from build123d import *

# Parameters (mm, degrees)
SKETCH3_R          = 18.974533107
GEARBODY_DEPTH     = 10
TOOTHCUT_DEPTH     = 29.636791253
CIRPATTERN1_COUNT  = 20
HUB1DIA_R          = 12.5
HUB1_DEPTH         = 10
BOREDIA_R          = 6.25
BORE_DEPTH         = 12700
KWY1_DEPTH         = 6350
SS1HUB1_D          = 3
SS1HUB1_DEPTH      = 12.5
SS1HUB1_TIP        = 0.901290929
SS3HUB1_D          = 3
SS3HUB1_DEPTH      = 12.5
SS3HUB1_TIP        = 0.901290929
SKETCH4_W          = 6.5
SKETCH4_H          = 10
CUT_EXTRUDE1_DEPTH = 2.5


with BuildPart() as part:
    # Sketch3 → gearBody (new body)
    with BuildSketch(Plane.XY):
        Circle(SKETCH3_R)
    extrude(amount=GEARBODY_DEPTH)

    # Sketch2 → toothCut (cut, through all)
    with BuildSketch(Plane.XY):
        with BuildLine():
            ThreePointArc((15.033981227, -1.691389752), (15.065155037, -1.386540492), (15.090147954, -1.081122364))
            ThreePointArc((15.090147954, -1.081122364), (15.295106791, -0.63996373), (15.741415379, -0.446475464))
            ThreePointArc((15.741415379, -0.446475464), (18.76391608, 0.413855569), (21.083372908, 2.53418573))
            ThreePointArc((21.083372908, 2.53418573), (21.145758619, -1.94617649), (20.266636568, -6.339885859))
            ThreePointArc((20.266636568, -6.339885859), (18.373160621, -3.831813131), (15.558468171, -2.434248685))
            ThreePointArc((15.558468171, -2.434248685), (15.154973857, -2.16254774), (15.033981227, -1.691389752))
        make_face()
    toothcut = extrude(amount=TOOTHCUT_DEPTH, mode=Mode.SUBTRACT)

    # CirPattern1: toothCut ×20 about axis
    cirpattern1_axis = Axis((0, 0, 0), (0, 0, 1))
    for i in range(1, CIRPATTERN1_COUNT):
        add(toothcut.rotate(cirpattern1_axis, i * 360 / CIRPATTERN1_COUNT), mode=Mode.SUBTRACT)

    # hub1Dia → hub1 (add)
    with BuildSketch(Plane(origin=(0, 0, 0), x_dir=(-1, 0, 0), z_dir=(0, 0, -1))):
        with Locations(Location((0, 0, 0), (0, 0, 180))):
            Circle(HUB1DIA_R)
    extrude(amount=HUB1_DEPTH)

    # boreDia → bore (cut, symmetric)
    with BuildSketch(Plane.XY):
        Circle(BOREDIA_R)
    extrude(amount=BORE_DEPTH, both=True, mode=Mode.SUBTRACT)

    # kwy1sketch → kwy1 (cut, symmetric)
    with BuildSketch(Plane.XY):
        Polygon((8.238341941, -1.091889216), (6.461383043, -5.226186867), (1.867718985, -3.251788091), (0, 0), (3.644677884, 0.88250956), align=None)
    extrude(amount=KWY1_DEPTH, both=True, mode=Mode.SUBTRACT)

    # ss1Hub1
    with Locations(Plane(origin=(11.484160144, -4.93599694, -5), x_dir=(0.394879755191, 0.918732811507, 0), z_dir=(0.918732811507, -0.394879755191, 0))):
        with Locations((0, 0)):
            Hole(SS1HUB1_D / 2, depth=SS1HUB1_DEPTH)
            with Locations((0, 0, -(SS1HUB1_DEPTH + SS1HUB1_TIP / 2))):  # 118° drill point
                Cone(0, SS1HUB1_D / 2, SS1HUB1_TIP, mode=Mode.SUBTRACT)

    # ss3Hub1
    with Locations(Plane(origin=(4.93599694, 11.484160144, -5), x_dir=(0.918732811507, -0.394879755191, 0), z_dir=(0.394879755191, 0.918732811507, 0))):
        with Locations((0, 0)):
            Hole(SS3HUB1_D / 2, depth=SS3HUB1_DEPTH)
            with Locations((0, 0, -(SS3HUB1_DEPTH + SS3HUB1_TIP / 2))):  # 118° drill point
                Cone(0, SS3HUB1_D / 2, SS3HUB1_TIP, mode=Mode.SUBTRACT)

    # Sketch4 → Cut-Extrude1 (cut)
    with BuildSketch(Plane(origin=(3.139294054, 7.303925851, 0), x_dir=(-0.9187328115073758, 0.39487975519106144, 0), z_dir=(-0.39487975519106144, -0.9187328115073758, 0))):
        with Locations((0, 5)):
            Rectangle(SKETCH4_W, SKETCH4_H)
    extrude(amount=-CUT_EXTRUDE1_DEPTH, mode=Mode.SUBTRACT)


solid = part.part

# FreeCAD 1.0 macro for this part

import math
import FreeCAD as App
import Part
import Sketcher
from FreeCAD import Vector
Q = App.Units.Quantity


def add_polygon(sketch, points):
    """Adds a closed chain of lines whose ends are joined by coincident constraints."""
    first, n = sketch.GeometryCount, len(points)
    for a, b in zip(points, points[1:] + points[:1]):
        sketch.addGeometry(Part.LineSegment(App.Vector(*a, 0), App.Vector(*b, 0)), False)
    for i in range(n):
        sketch.addConstraint(Sketcher.Constraint("Coincident", first + i, 2, first + (i + 1) % n, 1))

doc = App.newDocument("Part")
body = doc.addObject("PartDesign::Body", "Body")

# Sketch on XY plane
sketch1 = doc.addObject("Sketcher::SketchObject", "Sketch")
body.addObject(sketch1)
sketch1.AttachmentSupport = (doc.XY_Plane, [""])
sketch1.MapMode = "FlatFace"
sketch1.addGeometry(Part.Circle(Vector(0, 0, 0), Vector(0, 0, 1), 19), False)
sketch1.addConstraint([
    Sketcher.Constraint("Coincident", 0, 3, -1, 1),
    Sketcher.Constraint("Diameter", 0, Q("37.949066 mm")),
])
pad1 = doc.addObject("PartDesign::Pad", "Pad")
body.addObject(pad1)
pad1.Profile = sketch1
pad1.Length = 10

# Sketch on XY plane
sketch2 = doc.addObject("Sketcher::SketchObject", "Sketch001")
body.addObject(sketch2)
sketch2.AttachmentSupport = (doc.XY_Plane, [""])
sketch2.MapMode = "FlatFace"
sketch2.addGeometry([
    Part.ArcOfCircle(Part.Circle(Vector(0, 0, 0), Vector(0, 0, 1), 15.1), math.radians(-6.42), math.radians(-4.1)),  # 0
    Part.ArcOfCircle(Part.Circle(Vector(15.7, -1.8, 0), Vector(0, 0, 1), 0.7), math.radians(174), math.radians(257)),  # 1
    Part.ArcOfCircle(Part.Circle(Vector(14, -9.1, 0), Vector(0, 0, 1), 6.8), math.radians(24), math.radians(77)),  # 2
    Part.ArcOfCircle(Part.Circle(Vector(0, 0, 0), Vector(0, 0, 1), 21.2), math.radians(-17), math.radians(7)),  # 3
    Part.ArcOfCircle(Part.Circle(Vector(15.4, 6.4, 0), Vector(0, 0, 1), 6.8), math.radians(-87), math.radians(-34)),  # 4
    Part.ArcOfCircle(Part.Circle(Vector(15.8, -1.1, 0), Vector(0, 0, 1), 0.7), math.radians(93), math.radians(176)),  # 5
], False)
sketch2.addConstraint([
    Sketcher.Constraint("Tangent", 0, 1, 1, 1),
    Sketcher.Constraint("Tangent", 1, 2, 2, 2),
    Sketcher.Constraint("Coincident", 2, 1, 3, 1),
    Sketcher.Constraint("Coincident", 3, 2, 4, 2),
    Sketcher.Constraint("Tangent", 4, 1, 5, 1),
    Sketcher.Constraint("Tangent", 5, 2, 0, 2),
    Sketcher.Constraint("Coincident", 0, 3, -1, 1),
    Sketcher.Constraint("Coincident", 3, 3, -1, 1),
    Sketcher.Constraint("Equal", 2, 4),
    Sketcher.Constraint("Equal", 1, 5),
    Sketcher.Constraint("Radius", 1, Q("0.684258 mm")),
    Sketcher.Constraint("Radius", 2, Q("6.844478 mm")),
    Sketcher.Constraint("Radius", 3, Q("21.235129 mm")),
    Sketcher.Constraint("Radius", 0, Q("15.128828 mm")),
    Sketcher.Constraint("DistanceY", 2, 3, 1, 3, Q("7.3318 mm")),
    Sketcher.Constraint("DistanceY", 1, 3, 0, 1, Q("0.076499 mm")),
    Sketcher.Constraint("DistanceX", 5, 2, 1, 3, Q("0.623802 mm")),
    Sketcher.Constraint("DistanceX", 4, 3, 3, 2, Q("5.654459 mm")),
])
pocket1 = doc.addObject("PartDesign::Pocket", "Pocket")
body.addObject(pocket1)
pocket1.Profile = sketch2
pocket1.Type = "ThroughAll"
pocket1.Reversed = True
doc.recompute()

polarpattern = doc.addObject("PartDesign::PolarPattern", "PolarPattern")
body.addObject(polarpattern)
polarpattern.Originals = [pocket1]
polarpattern.Axis = (doc.Z_Axis, [""])
polarpattern.Angle = 360
polarpattern.Occurrences = 20
body.Tip = polarpattern

# Sketch on XY plane
sketch3 = doc.addObject("Sketcher::SketchObject", "Sketch002")
body.addObject(sketch3)
sketch3.AttachmentSupport = (doc.XY_Plane, [""])
sketch3.MapMode = "FlatFace"
sketch3.addGeometry(Part.Circle(Vector(0, 0, 0), Vector(0, 0, 1), 12), False)
sketch3.addConstraint([
    Sketcher.Constraint("Coincident", 0, 3, -1, 1),
    Sketcher.Constraint("Diameter", 0, Q("25 mm")),
])
pad2 = doc.addObject("PartDesign::Pad", "Pad001")
body.addObject(pad2)
pad2.Profile = sketch3
pad2.Length = 10
pad2.Reversed = True

# Sketch on XY plane
sketch4 = doc.addObject("Sketcher::SketchObject", "Sketch003")
body.addObject(sketch4)
sketch4.AttachmentSupport = (doc.XY_Plane, [""])
sketch4.MapMode = "FlatFace"
sketch4.addGeometry(Part.Circle(Vector(0, 0, 0), Vector(0, 0, 1), 6), False)
sketch4.addConstraint([
    Sketcher.Constraint("Coincident", 0, 3, -1, 1),
    Sketcher.Constraint("Diameter", 0, Q("12.5 mm")),
])
pocket2 = doc.addObject("PartDesign::Pocket", "Pocket001")
body.addObject(pocket2)
pocket2.Profile = sketch4
pocket2.Length = 25400
pocket2.Midplane = True

# Sketch on XY plane
sketch5 = doc.addObject("Sketcher::SketchObject", "Sketch004")
body.addObject(sketch5)
sketch5.AttachmentSupport = (doc.XY_Plane, [""])
sketch5.MapMode = "FlatFace"
add_polygon(sketch5, [(6.5, -5.2), (8.2, -1.1), (3.6, 0.9), (0, 0), (1.9, -3.3)])  # lines 0-4
sketch5.addConstraint([
    Sketcher.Constraint("Coincident", 2, 2, -1, 1),
    Sketcher.Constraint("Perpendicular", 0, 1),
    Sketcher.Constraint("Parallel", 1, 4),
    Sketcher.Constraint("Equal", 2, 3),
    Sketcher.Constraint("Equal", 1, 4),
    Sketcher.Constraint("Distance", 1, Q("5 mm")),
    Sketcher.Constraint("Distance", 0, Q("4.5 mm")),
    Sketcher.Constraint("Distance", 2, Q("3.75 mm")),
    Sketcher.Constraint("DistanceY", 0, 2, 1, 2, Q("1.974399 mm")),
])
pocket3 = doc.addObject("PartDesign::Pocket", "Pocket002")
body.addObject(pocket3)
pocket3.Profile = sketch5
pocket3.Length = 12700
pocket3.Midplane = True

# Sketch on an angled plane
sketch6 = doc.addObject("Sketcher::SketchObject", "Sketch005")
body.addObject(sketch6)
sketch6.Placement = App.Placement(Vector(11.48416, -4.935997, 0), App.Rotation(Vector(0.394879755, 0.918732812, 0), Vector(0, 0, 1.000000001), Vector(0.918732812, -0.394879755, 0), "ZXY"))
sketch6.addGeometry(Part.Circle(Vector(0, -5, 0), Vector(0, 0, 1), 1.5), False)
sketch6.addConstraint([
    Sketcher.Constraint("PointOnObject", 0, 3, -2),
    Sketcher.Constraint("Diameter", 0, Q("3 mm")),
    Sketcher.Constraint("DistanceY", 0, 3, -1, 1, Q("5 mm")),
])
doc.recompute()
hole = doc.addObject("PartDesign::Hole", "Hole")
body.addObject(hole)
hole.Profile = sketch6
hole.ThreadType = "None"
hole.Diameter = 3
hole.DepthType = "Dimension"
hole.Depth = 12.5
hole.DrillPoint = "Angled"
hole.DrillPointAngle = 118

# Sketch on an angled plane
sketch7 = doc.addObject("Sketcher::SketchObject", "Sketch006")
body.addObject(sketch7)
sketch7.Placement = App.Placement(Vector(4.935997, 11.48416, 0), App.Rotation(Vector(0.918732812, -0.394879755, 0), Vector(0, 0, -1.000000001), Vector(0.394879755, 0.918732812, 0), "ZXY"))
sketch7.addGeometry(Part.Circle(Vector(0, 5, 0), Vector(0, 0, 1), 1.5), False)
sketch7.addConstraint([
    Sketcher.Constraint("PointOnObject", 0, 3, -2),
    Sketcher.Constraint("Diameter", 0, Q("3 mm")),
    Sketcher.Constraint("DistanceY", -1, 1, 0, 3, Q("5 mm")),
])
doc.recompute()
hole2 = doc.addObject("PartDesign::Hole", "Hole001")
body.addObject(hole2)
hole2.Profile = sketch7
hole2.ThreadType = "None"
hole2.Diameter = 3
hole2.DepthType = "Dimension"
hole2.Depth = 12.5
hole2.DrillPoint = "Angled"
hole2.DrillPointAngle = 118

# Sketch on an angled plane
sketch8 = doc.addObject("Sketcher::SketchObject", "Sketch007")
body.addObject(sketch8)
sketch8.Placement = App.Placement(Vector(3.139294, 7.303926, 0), App.Rotation(Vector(-0.918732812, 0.394879755, 0), Vector(0, 0, -1.000000001), Vector(-0.394879755, -0.918732812, 0), "ZXY"))
add_polygon(sketch8, [(-3, 10), (-3, 0), (3, 0), (3, 10)])  # lines 0-3
sketch8.addConstraint([
    Sketcher.Constraint("Vertical", 0),
    Sketcher.Constraint("Horizontal", 1),
    Sketcher.Constraint("Vertical", 2),
    Sketcher.Constraint("Horizontal", 3),
    Sketcher.Constraint("Symmetric", 0, 2, 1, 2, -1, 1),
    Sketcher.Constraint("DistanceY", 0, 2, 0, 1, Q("10 mm")),
    Sketcher.Constraint("DistanceX", 1, 1, 1, 2, Q("6.5 mm")),
])
pocket4 = doc.addObject("PartDesign::Pocket", "Pocket003")
body.addObject(pocket4)
pocket4.Profile = sketch8
pocket4.Length = 2.5

doc.recompute()
